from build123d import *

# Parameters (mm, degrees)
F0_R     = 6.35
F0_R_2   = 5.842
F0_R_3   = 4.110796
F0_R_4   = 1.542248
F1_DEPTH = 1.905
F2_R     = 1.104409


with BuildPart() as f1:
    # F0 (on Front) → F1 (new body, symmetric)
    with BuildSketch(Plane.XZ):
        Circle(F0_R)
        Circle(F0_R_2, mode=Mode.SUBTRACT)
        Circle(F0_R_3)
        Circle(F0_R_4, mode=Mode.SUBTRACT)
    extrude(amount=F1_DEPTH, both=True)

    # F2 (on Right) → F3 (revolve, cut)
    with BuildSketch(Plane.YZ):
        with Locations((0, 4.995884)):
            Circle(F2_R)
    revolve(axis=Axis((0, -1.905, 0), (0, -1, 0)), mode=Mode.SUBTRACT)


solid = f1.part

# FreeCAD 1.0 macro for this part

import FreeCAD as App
import Part
import Sketcher
from FreeCAD import Vector
Q = App.Units.Quantity

doc = App.newDocument("Part")
params = doc.addObject("Spreadsheet::Sheet", "Params")
for row, (alias, value) in enumerate([
    ("sketch1_diameter", "0.5 in"),
    ("sketch1_diameter2", "0.46 in"),
    ("pad1_length", "0.15 in"),
    ("groove_angle", "360 deg"),
], start=1):
    params.set(f"A{row}", alias)
    params.set(f"B{row}", "=" + value)
    params.setAlias(f"B{row}", alias)

body = doc.addObject("PartDesign::Body", "Body")
body.AllowCompound = True

# Sketch on XZ plane
sketch1 = body.newObject("Sketcher::SketchObject", "Sketch")
sketch1.AttachmentSupport = (doc.getObject("XZ_Plane"), [""])
sketch1.MapMode = "FlatFace"
sketch1.addGeometry([
    Part.Circle(Vector(0, 0, 0), Vector(0, 0, 1), 6.35),
    Part.Circle(Vector(0, 0, 0), Vector(0, 0, 1), 5.842),
    Part.Circle(Vector(0, 0, 0), Vector(0, 0, 1), 4.110796),
    Part.Circle(Vector(0, 0, 0), Vector(0, 0, 1), 1.542248),
], False)
sketch1.addConstraint([
    Sketcher.Constraint("Coincident", 0, 3, -1, 1),
    Sketcher.Constraint("Coincident", 1, 3, -1, 1),
    Sketcher.Constraint("Coincident", 2, 3, -1, 1),
    Sketcher.Constraint("Coincident", 3, 3, -1, 1),
    Sketcher.Constraint("Diameter", 0, Q("0.5 in")),
    Sketcher.Constraint("Diameter", 1, Q("0.46 in")),
    Sketcher.Constraint("Diameter", 2, Q("8.221592 mm")),
    Sketcher.Constraint("Diameter", 3, Q("3.084496 mm")),
])
sketch1.setExpression("Constraints[4]", "Params.sketch1_diameter")
sketch1.setExpression("Constraints[5]", "Params.sketch1_diameter2")
pad1 = body.newObject("PartDesign::Pad", "Pad")
pad1.Profile = sketch1
pad1.setExpression("Length", "Params.pad1_length")
pad1.Midplane = True

# Sketch on YZ plane
sketch2 = body.newObject("Sketcher::SketchObject", "Sketch001")
sketch2.AttachmentSupport = (doc.getObject("YZ_Plane"), [""])
sketch2.MapMode = "FlatFace"
sketch2.addGeometry(Part.Circle(Vector(0, 4.995884, 0), Vector(0, 0, 1), 1.104409), False)
sketch2.addConstraint([
    Sketcher.Constraint("PointOnObject", 0, 3, -2),
    Sketcher.Constraint("Diameter", 0, Q("2.208818 mm")),
    Sketcher.Constraint("DistanceY", -1, 1, 0, 3, Q("4.995884 mm")),
])
groove = body.newObject("PartDesign::Groove", "Groove")
groove.Profile = sketch2
groove.ReferenceAxis = (sketch2, ["H_Axis"])
groove.setExpression("Angle", "Params.groove_angle")

doc.recompute()
